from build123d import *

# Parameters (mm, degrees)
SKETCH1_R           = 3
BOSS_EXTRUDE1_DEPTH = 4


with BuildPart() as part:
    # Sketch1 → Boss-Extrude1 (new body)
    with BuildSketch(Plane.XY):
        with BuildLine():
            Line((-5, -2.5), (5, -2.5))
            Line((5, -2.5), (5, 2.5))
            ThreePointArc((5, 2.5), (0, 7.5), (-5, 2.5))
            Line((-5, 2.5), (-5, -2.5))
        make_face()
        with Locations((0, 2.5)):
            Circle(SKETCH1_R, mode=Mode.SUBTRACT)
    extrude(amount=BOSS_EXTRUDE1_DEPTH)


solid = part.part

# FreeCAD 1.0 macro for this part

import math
import FreeCAD as App
import Part
import Sketcher
from FreeCAD import Vector
Q = App.Units.Quantity

doc = App.newDocument("Part")
params = doc.addObject("Spreadsheet::Sheet", "Params")
for row, (alias, value) in enumerate([
    ("sketch1_diameter", "6 mm"),
    ("sketch1_radius", "5 mm"),
    ("sketch1_height", "5 mm"),
    ("pad1_length", "4 mm"),
], start=1):
    params.set(f"A{row}", alias)
    params.set(f"B{row}", "=" + value)
    params.setAlias(f"B{row}", alias)

body = doc.addObject("PartDesign::Body", "Body")

# Sketch on XY plane
sketch1 = body.newObject("Sketcher::SketchObject", "Sketch")
sketch1.AttachmentSupport = (doc.getObject("XY_Plane"), [""])
sketch1.MapMode = "FlatFace"
sketch1.addGeometry([
    Part.LineSegment(Vector(-5, -2.5, 0), Vector(5, -2.5, 0)),  # 0
    Part.LineSegment(Vector(5, -2.5, 0), Vector(5, 2.5, 0)),  # 1
    Part.ArcOfCircle(Part.Circle(Vector(0, 2.5, 0), Vector(0, 0, 1), 5), math.radians(0), math.radians(180)),  # 2
    Part.LineSegment(Vector(-5, 2.5, 0), Vector(-5, -2.5, 0)),  # 3
    Part.Circle(Vector(0, 2.5, 0), Vector(0, 0, 1), 3),  # 4
], False)
sketch1.addConstraint([
    Sketcher.Constraint("Coincident", 0, 2, 1, 1),
    Sketcher.Constraint("Tangent", 1, 2, 2, 1),
    Sketcher.Constraint("Tangent", 2, 2, 3, 1),
    Sketcher.Constraint("Coincident", 3, 2, 0, 1),
    Sketcher.Constraint("Horizontal", 0),
    Sketcher.Constraint("Vertical", 1),
    Sketcher.Constraint("Vertical", 3),
    Sketcher.Constraint("Coincident", 4, 3, 2, 3),
    Sketcher.Constraint("Symmetric", 0, 2, 2, 2, -1, 1),
    Sketcher.Constraint("Diameter", 4, Q("6 mm")),
    Sketcher.Constraint("Radius", 2, Q("5 mm")),
    Sketcher.Constraint("DistanceY", 1, 1, 1, 2, Q("5 mm")),
])
sketch1.setExpression("Constraints[9]", "Params.sketch1_diameter")
sketch1.setExpression("Constraints[10]", "Params.sketch1_radius")
sketch1.setExpression("Constraints[11]", "Params.sketch1_height")
pad1 = body.newObject("PartDesign::Pad", "Pad")
pad1.Profile = sketch1
pad1.setExpression("Length", "Params.pad1_length")

doc.recompute()
